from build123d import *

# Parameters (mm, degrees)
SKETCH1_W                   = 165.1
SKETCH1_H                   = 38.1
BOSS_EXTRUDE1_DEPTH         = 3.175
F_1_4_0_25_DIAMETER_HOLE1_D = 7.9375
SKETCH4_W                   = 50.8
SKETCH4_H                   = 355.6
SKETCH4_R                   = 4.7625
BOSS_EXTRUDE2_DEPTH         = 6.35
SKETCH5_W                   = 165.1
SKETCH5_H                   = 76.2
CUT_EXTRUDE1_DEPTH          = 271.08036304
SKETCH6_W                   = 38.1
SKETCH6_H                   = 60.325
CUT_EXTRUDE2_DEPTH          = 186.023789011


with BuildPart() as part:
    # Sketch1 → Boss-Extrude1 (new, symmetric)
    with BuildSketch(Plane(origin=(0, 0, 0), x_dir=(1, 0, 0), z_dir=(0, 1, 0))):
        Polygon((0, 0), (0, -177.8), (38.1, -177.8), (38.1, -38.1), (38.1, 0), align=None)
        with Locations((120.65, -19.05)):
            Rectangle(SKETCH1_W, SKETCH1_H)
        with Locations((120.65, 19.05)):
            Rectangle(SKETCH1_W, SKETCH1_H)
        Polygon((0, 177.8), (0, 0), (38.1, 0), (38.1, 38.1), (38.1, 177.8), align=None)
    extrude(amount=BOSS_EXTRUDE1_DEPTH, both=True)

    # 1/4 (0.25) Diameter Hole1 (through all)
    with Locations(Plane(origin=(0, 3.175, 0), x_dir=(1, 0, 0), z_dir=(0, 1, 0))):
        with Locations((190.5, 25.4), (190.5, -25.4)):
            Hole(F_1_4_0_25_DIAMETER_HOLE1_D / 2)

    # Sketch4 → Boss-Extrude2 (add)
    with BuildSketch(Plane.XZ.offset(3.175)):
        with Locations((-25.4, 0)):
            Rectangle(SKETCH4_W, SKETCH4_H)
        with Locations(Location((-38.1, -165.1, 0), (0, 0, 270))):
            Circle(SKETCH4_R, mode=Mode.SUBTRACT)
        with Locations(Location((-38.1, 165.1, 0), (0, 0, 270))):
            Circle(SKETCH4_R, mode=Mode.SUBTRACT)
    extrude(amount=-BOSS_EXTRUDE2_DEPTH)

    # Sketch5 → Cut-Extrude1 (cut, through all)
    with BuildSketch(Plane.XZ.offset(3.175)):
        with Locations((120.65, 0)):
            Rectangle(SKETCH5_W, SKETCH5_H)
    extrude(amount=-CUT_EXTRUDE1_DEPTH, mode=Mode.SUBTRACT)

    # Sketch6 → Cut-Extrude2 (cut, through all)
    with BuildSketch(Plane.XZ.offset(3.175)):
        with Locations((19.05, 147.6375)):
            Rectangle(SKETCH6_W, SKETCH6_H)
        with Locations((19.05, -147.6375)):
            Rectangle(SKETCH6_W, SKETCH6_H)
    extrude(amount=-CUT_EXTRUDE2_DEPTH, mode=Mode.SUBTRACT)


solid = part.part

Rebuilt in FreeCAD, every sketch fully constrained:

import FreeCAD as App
import Part
import Sketcher

V = App.Vector
Q = App.Units.Quantity


def add_polygon(sketch, points):
    """Adds a closed chain of lines whose ends are joined by coincident constraints."""
    first, n = sketch.GeometryCount, len(points)
    for a, b in zip(points, points[1:] + points[:1]):
        sketch.addGeometry(Part.LineSegment(App.Vector(*a, 0), App.Vector(*b, 0)), False)
    for i in range(n):
        sketch.addConstraint(Sketcher.Constraint("Coincident", first + i, 2, first + (i + 1) % n, 1))

doc = App.newDocument("Part")
body = doc.addObject("PartDesign::Body", "Body")

sketch1 = body.newObject("Sketcher::SketchObject", "Sketch")
sketch1.AttachmentSupport = (doc.getObject("XZ_Plane"), [""])
sketch1.MapMode = "FlatFace"
add_polygon(sketch1, [(0, 177.8), (38.1, 177.8), (38.1, 38.1), (203.2, 38.1), (203.2, -38.1), (38.1, -38.1), (38.1, -177.8), (0, -177.8)])
sketch1.addConstraint(Sketcher.Constraint("Horizontal", 0))
sketch1.addConstraint(Sketcher.Constraint("Vertical", 1))
sketch1.addConstraint(Sketcher.Constraint("Horizontal", 2))
sketch1.addConstraint(Sketcher.Constraint("Vertical", 3))
sketch1.addConstraint(Sketcher.Constraint("Horizontal", 4))
sketch1.addConstraint(Sketcher.Constraint("Vertical", 5))
sketch1.addConstraint(Sketcher.Constraint("Horizontal", 6))
sketch1.addConstraint(Sketcher.Constraint("Vertical", 7))
sketch1.addConstraint(Sketcher.Constraint("Symmetric", 6, 2, 7, 2, -1, 1))
sketch1.addConstraint(Sketcher.Constraint("Symmetric", 1, 2, 4, 2, -1))
sketch1.addConstraint(Sketcher.Constraint("DistanceY", 3, 2, 3, 1, Q("3 in")))
sketch1.addConstraint(Sketcher.Constraint("DistanceY", 7, 1, 7, 2, Q("14 in")))
sketch1.addConstraint(Sketcher.Constraint("DistanceX", 0, 1, 0, 2, Q("1.5 in")))
sketch1.addConstraint(Sketcher.Constraint("DistanceX", 2, 1, 2, 2, Q("6.5 in")))
pad1 = body.newObject("PartDesign::Pad", "Pad")
pad1.Profile = sketch1
pad1.Length = Q("0.25 in")
pad1.Midplane = True

sketch2 = body.newObject("Sketcher::SketchObject", "Sketch001")
sketch2.AttachmentSupport = (doc.getObject("XZ_Plane"), [""])
sketch2.MapMode = "FlatFace"
sketch2.AttachmentOffset = App.Placement(V(0, 0, -0.125 * 25.4), App.Rotation())
sketch2.addGeometry(Part.Circle(V(190.5, -25.4, 0), V(0, 0, 1), 3.96875), False)
sketch2.addGeometry(Part.Circle(V(190.5, 25.4, 0), V(0, 0, 1), 3.96875), False)
sketch2.addConstraint(Sketcher.Constraint("Equal", 0, 1))
sketch2.addConstraint(Sketcher.Constraint("Symmetric", 0, 3, 1, 3, -1))
sketch2.addConstraint(Sketcher.Constraint("Diameter", 0, Q("0.3125 in")))
sketch2.addConstraint(Sketcher.Constraint("DistanceY", 0, 3, -1, 1, Q("1 in")))
sketch2.addConstraint(Sketcher.Constraint("DistanceX", -1, 1, 0, 3, Q("7.5 in")))
doc.recompute()
hole = body.newObject("PartDesign::Hole", "Hole")
hole.Profile = sketch2
hole.ThreadType = "None"
hole.Diameter = Q("0.3125 in")
hole.DepthType = "ThroughAll"
hole.Reversed = True

sketch3 = body.newObject("Sketcher::SketchObject", "Sketch002")
sketch3.AttachmentSupport = (doc.getObject("XZ_Plane"), [""])
sketch3.MapMode = "FlatFace"
sketch3.AttachmentOffset = App.Placement(V(0, 0, 0.125 * 25.4), App.Rotation())
add_polygon(sketch3, [(-50.8, 177.8), (-50.8, -177.8), (0, -177.8), (0, 177.8)])
sketch3.addGeometry(Part.Circle(V(-38.1, -165.1, 0), V(0, 0, 1), 4.7625), False)
sketch3.addGeometry(Part.Circle(V(-38.1, 165.1, 0), V(0, 0, 1), 4.7625), False)
sketch3.addConstraint(Sketcher.Constraint("Vertical", 0))
sketch3.addConstraint(Sketcher.Constraint("Horizontal", 1))
sketch3.addConstraint(Sketcher.Constraint("Vertical", 2))
sketch3.addConstraint(Sketcher.Constraint("Horizontal", 3))
sketch3.addConstraint(Sketcher.Constraint("Equal", 4, 5))
sketch3.addConstraint(Sketcher.Constraint("Symmetric", 1, 2, 2, 2, -1, 1))
sketch3.addConstraint(Sketcher.Constraint("Symmetric", 4, 3, 5, 3, -1))
sketch3.addConstraint(Sketcher.Constraint("DistanceX", 1, 1, 1, 2, Q("2 in")))
sketch3.addConstraint(Sketcher.Constraint("DistanceY", 0, 2, 0, 1, Q("14 in")))
sketch3.addConstraint(Sketcher.Constraint("Diameter", 4, Q("0.375 in")))
sketch3.addConstraint(Sketcher.Constraint("DistanceY", 4, 3, 5, 3, Q("13 in")))
sketch3.addConstraint(Sketcher.Constraint("DistanceX", 4, 3, -1, 1, Q("1.5 in")))
pad2 = body.newObject("PartDesign::Pad", "Pad001")
pad2.Profile = sketch3
pad2.Length = Q("0.25 in")
pad2.Reversed = True

sketch4 = body.newObject("Sketcher::SketchObject", "Sketch003")
sketch4.AttachmentSupport = (doc.getObject("XZ_Plane"), [""])
sketch4.MapMode = "FlatFace"
sketch4.AttachmentOffset = App.Placement(V(0, 0, 0.125 * 25.4), App.Rotation())
add_polygon(sketch4, [(38.1, 38.1), (38.1, -38.1), (203.2, -38.1), (203.2, 38.1)])
sketch4.addConstraint(Sketcher.Constraint("Vertical", 0))
sketch4.addConstraint(Sketcher.Constraint("Horizontal", 1))
sketch4.addConstraint(Sketcher.Constraint("Vertical", 2))
sketch4.addConstraint(Sketcher.Constraint("Horizontal", 3))
sketch4.addConstraint(Sketcher.Constraint("DistanceY", 0, 2, 0, 1, Q("3 in")))
sketch4.addConstraint(Sketcher.Constraint("DistanceX", 1, 1, 1, 2, Q("6.5 in")))
sketch4.addConstraint(Sketcher.Constraint("DistanceX", -1, 1, 1, 2, Q("8 in")))
sketch4.addConstraint(Sketcher.Constraint("DistanceY", 0, 2, -1, 1, Q("1.5 in")))
pocket1 = body.newObject("PartDesign::Pocket", "Pocket")
pocket1.Profile = sketch4
pocket1.Type = "ThroughAll"

sketch5 = body.newObject("Sketcher::SketchObject", "Sketch004")
sketch5.AttachmentSupport = (doc.getObject("XZ_Plane"), [""])
sketch5.MapMode = "FlatFace"
sketch5.AttachmentOffset = App.Placement(V(0, 0, 0.125 * 25.4), App.Rotation())
add_polygon(sketch5, [(0, 177.8), (0, 117.475), (38.1, 117.475), (38.1, 177.8)])
add_polygon(sketch5, [(0, -117.475), (0, -177.8), (38.1, -177.8), (38.1, -117.475)])
sketch5.addConstraint(Sketcher.Constraint("Vertical", 0))
sketch5.addConstraint(Sketcher.Constraint("Horizontal", 1))
sketch5.addConstraint(Sketcher.Constraint("Vertical", 2))
sketch5.addConstraint(Sketcher.Constraint("Horizontal", 3))
sketch5.addConstraint(Sketcher.Constraint("Vertical", 4))
sketch5.addConstraint(Sketcher.Constraint("Horizontal", 5))
sketch5.addConstraint(Sketcher.Constraint("Vertical", 6))
sketch5.addConstraint(Sketcher.Constraint("Horizontal", 7))
sketch5.addConstraint(Sketcher.Constraint("Symmetric", 3, 2, 4, 2, -1, 1))
sketch5.addConstraint(Sketcher.Constraint("Symmetric", 1, 2, 6, 2, -1))
sketch5.addConstraint(Sketcher.Constraint("PointOnObject", 0, 2, -2))
sketch5.addConstraint(Sketcher.Constraint("DistanceX", 1, 1, 1, 2, Q("1.5 in")))
sketch5.addConstraint(Sketcher.Constraint("DistanceY", -1, 1, 2, 2, Q("7 in")))
sketch5.addConstraint(Sketcher.Constraint("DistanceY", 0, 2, 0, 1, Q("2.375 in")))
pocket2 = body.newObject("PartDesign::Pocket", "Pocket001")
pocket2.Profile = sketch5
pocket2.Type = "ThroughAll"

doc.recompute()
